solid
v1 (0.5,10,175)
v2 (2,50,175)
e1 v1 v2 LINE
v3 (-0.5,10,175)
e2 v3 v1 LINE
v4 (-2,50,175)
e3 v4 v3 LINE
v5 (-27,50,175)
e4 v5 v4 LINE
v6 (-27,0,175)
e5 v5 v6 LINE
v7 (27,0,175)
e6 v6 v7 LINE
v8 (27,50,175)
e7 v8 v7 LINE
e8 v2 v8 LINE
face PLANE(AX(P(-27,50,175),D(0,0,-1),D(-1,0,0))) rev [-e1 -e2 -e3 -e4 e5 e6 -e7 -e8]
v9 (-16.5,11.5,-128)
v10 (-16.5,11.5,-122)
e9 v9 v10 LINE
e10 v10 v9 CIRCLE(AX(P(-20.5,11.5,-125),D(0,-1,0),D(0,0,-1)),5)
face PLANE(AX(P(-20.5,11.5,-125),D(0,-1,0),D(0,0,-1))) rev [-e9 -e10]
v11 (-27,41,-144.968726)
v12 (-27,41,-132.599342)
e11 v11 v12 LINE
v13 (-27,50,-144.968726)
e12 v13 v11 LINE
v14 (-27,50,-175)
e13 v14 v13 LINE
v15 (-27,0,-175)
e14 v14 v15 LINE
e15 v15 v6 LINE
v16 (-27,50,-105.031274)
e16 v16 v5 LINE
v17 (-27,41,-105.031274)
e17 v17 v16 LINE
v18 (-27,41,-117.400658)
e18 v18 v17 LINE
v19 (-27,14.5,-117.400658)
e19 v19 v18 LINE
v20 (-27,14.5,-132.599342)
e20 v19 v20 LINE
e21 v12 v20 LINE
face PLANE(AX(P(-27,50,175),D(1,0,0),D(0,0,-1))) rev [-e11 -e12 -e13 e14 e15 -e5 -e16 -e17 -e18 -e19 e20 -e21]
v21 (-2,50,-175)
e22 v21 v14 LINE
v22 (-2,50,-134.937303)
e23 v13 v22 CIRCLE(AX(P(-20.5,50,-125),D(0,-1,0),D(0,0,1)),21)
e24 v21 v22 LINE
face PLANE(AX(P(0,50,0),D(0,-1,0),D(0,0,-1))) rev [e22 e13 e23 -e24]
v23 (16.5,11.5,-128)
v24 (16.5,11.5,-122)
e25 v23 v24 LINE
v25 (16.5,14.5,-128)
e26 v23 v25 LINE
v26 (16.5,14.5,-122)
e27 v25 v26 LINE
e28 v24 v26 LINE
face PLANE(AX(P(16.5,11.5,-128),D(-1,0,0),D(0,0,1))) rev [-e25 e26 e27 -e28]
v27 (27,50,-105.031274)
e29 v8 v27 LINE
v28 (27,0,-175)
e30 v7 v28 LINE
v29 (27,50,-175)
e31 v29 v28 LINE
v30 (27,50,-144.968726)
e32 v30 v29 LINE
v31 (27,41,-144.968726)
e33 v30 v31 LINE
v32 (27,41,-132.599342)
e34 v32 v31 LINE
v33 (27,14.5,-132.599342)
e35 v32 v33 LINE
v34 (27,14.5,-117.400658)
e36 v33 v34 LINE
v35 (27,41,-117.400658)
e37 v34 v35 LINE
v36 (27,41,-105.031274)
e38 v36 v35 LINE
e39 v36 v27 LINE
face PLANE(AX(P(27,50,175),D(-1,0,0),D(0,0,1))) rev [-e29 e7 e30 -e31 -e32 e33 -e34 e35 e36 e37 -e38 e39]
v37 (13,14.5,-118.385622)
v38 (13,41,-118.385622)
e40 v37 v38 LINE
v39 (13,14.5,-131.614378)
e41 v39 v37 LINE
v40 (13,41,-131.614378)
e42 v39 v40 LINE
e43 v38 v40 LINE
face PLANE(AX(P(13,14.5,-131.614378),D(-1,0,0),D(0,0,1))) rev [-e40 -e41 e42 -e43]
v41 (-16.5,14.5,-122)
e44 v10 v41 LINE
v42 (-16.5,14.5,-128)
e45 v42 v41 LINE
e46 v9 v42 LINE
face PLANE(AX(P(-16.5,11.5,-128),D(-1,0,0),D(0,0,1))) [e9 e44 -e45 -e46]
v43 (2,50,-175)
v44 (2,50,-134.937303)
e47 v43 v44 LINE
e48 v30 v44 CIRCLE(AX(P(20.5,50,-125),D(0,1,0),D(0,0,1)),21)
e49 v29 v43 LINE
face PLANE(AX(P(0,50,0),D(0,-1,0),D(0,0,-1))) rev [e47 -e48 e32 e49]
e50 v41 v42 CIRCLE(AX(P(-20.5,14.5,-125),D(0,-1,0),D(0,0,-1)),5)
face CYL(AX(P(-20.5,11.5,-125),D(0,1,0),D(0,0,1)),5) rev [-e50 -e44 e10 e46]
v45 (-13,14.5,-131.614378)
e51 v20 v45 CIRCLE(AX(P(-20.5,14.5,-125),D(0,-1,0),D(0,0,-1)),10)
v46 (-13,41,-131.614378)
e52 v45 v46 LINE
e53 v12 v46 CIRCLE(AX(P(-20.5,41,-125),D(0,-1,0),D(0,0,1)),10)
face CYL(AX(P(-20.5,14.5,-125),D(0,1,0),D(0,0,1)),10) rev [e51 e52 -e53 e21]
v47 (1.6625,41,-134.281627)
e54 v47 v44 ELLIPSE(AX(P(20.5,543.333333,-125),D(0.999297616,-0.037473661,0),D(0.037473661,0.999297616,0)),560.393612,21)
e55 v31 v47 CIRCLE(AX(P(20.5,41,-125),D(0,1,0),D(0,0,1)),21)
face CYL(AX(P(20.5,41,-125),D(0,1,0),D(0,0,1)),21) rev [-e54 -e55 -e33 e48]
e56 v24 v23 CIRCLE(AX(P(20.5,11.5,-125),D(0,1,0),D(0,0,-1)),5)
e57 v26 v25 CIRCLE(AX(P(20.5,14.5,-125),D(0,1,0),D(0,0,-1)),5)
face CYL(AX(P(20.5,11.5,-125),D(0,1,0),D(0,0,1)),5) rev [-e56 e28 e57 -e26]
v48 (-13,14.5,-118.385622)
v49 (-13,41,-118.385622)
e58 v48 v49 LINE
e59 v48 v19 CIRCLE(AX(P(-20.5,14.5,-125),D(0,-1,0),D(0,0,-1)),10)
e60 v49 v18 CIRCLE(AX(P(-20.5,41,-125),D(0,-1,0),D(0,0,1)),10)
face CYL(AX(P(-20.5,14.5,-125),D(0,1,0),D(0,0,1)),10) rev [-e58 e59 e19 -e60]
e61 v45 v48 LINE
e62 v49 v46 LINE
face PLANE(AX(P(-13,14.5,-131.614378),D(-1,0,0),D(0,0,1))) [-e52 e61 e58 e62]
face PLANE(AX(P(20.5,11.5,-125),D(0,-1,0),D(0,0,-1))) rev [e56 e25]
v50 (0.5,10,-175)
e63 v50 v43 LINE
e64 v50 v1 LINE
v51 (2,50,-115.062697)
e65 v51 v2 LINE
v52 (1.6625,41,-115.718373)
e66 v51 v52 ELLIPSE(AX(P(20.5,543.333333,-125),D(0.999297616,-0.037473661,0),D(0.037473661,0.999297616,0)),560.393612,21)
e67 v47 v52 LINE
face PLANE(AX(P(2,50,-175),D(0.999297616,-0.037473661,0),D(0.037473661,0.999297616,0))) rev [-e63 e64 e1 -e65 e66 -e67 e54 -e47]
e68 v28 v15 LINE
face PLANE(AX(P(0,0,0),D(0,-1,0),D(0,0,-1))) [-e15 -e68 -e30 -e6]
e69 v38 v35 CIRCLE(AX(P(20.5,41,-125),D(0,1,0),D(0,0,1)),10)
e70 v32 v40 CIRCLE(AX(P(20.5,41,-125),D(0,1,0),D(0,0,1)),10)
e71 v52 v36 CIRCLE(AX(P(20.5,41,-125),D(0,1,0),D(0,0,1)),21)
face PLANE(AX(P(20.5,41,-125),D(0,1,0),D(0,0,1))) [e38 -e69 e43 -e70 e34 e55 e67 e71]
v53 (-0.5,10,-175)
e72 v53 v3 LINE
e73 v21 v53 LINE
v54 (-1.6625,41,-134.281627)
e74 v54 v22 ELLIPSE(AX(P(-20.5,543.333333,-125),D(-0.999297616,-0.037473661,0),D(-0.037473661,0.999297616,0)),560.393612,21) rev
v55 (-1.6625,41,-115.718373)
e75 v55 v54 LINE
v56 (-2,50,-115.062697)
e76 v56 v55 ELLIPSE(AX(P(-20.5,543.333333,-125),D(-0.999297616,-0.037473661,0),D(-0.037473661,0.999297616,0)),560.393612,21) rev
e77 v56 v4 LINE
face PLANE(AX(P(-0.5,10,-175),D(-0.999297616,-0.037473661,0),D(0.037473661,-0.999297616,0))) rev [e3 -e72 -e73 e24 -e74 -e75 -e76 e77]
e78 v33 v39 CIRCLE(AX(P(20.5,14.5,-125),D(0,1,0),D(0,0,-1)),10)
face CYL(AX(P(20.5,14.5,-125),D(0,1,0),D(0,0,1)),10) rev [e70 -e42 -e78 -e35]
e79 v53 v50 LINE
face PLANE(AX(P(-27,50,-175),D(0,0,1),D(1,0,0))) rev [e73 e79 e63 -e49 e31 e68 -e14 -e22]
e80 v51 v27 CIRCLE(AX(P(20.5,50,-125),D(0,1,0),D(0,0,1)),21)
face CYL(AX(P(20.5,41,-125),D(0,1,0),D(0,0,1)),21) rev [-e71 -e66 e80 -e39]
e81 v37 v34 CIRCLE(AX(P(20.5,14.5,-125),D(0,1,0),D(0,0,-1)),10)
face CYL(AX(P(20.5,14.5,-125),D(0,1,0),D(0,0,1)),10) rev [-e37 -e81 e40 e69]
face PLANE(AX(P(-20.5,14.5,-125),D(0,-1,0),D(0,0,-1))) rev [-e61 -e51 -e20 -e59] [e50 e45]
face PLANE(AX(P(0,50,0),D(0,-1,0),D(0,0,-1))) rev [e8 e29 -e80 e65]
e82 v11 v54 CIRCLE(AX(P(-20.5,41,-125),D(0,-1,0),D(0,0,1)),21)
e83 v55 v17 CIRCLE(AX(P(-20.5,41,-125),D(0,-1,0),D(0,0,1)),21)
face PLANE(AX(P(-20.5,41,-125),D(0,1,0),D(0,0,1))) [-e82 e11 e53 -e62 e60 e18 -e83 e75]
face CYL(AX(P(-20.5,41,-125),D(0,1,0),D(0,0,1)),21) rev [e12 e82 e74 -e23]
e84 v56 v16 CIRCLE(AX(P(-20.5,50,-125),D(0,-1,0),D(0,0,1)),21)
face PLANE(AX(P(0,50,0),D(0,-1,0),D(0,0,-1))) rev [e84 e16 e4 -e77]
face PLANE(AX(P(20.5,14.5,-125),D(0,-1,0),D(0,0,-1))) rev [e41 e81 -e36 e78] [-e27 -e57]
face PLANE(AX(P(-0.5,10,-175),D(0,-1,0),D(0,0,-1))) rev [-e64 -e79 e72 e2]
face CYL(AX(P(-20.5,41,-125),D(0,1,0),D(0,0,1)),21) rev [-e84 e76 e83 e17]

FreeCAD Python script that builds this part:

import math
import FreeCAD as App
import Part
import Sketcher
from FreeCAD import Vector

doc = App.newDocument("Part")
body = doc.addObject("PartDesign::Body", "Body")

# Sketch on XZ plane
sketch1 = body.newObject("Sketcher::SketchObject", "Sketch")
sketch1.AttachmentSupport = (doc.getObject("XZ_Plane"), [""])
sketch1.MapMode = "FlatFace"
sketch1.addGeometry([
    Part.LineSegment(Vector(-27, -175, 0), Vector(-27, 175, 0)),
    Part.LineSegment(Vector(-27, 175, 0), Vector(27, 175, 0)),
    Part.LineSegment(Vector(27, 175, 0), Vector(27, -175, 0)),
    Part.LineSegment(Vector(27, -175, 0), Vector(-27, -175, 0)),
], False)
sketch1.addConstraint([
    Sketcher.Constraint("Coincident", 0, 2, 1, 1),
    Sketcher.Constraint("Coincident", 1, 2, 2, 1),
    Sketcher.Constraint("Coincident", 2, 2, 3, 1),
    Sketcher.Constraint("Coincident", 3, 2, 0, 1),
    Sketcher.Constraint("Vertical", 0),
    Sketcher.Constraint("Horizontal", 1),
    Sketcher.Constraint("Vertical", 2),
    Sketcher.Constraint("Horizontal", 3),
    Sketcher.Constraint("Symmetric", 0, 2, 2, 2, -1, 1),
    Sketcher.Constraint("DistanceX", 1, 1, 1, 2, 54.0),
    Sketcher.Constraint("DistanceY", 0, 1, 0, 2, 350.0),
])
pad1 = body.newObject("PartDesign::Pad", "Pad")
pad1.Profile = sketch1
pad1.Length = 50
pad1.Reversed = True

# Sketch on XY plane
sketch2 = body.newObject("Sketcher::SketchObject", "Sketch001")
sketch2.AttachmentSupport = (doc.getObject("XY_Plane"), [""])
sketch2.MapMode = "FlatFace"
sketch2.AttachmentOffset = App.Placement(Vector(0, 0, 175), App.Rotation())
sketch2.addGeometry([
    Part.LineSegment(Vector(-2, 50, 0), Vector(-0.5, 10, 0)),
    Part.LineSegment(Vector(-0.5, 10, 0), Vector(0.5, 10, 0)),
    Part.LineSegment(Vector(0.5, 10, 0), Vector(2, 50, 0)),
    Part.LineSegment(Vector(2, 50, 0), Vector(-2, 50, 0)),
], False)
sketch2.addConstraint([
    Sketcher.Constraint("Coincident", 0, 2, 1, 1),
    Sketcher.Constraint("Coincident", 1, 2, 2, 1),
    Sketcher.Constraint("Coincident", 2, 2, 3, 1),
    Sketcher.Constraint("Coincident", 3, 2, 0, 1),
    Sketcher.Constraint("Horizontal", 1),
    Sketcher.Constraint("Horizontal", 3),
    Sketcher.Constraint("Equal", 0, 2),
    Sketcher.Constraint("DistanceX", 1, 1, 1, 2, 1.0),
    Sketcher.Constraint("DistanceX", 3, 2, 3, 1, 4.0),
    Sketcher.Constraint("DistanceY", -1, 1, 0, 2, 10.0),
    Sketcher.Constraint("DistanceX", -1, 1, 2, 2, 2.0),
    Sketcher.Constraint("DistanceY", -1, 1, 2, 2, 50.0),
])
pocket1 = body.newObject("PartDesign::Pocket", "Pocket")
pocket1.Profile = sketch2
pocket1.Type = "ThroughAll"

# Sketch on XZ plane
sketch3 = body.newObject("Sketcher::SketchObject", "Sketch002")
sketch3.AttachmentSupport = (doc.getObject("XZ_Plane"), [""])
sketch3.MapMode = "FlatFace"
sketch3.AttachmentOffset = App.Placement(Vector(0, 0, -50), App.Rotation())
sketch3.addGeometry([
    Part.Circle(Vector(20, -125, 0), Vector(0, 0, 1), 21),
    Part.Circle(Vector(20, -125, 0), Vector(0, 0, 1), 10),
], False)
sketch3.addConstraint([
    Sketcher.Constraint("Coincident", 1, 3, 0, 3),
    Sketcher.Constraint("Diameter", 0, 42.0),
    Sketcher.Constraint("Diameter", 1, 20.0),
    Sketcher.Constraint("DistanceY", 0, 3, -1, 1, 125.0),
    Sketcher.Constraint("DistanceX", -1, 1, 0, 3, 20.5),
])
pocket2 = body.newObject("PartDesign::Pocket", "Pocket001")
pocket2.Profile = sketch3
pocket2.Length = 9
pocket2.Reversed = True

# Sketch on XZ plane
sketch4 = body.newObject("Sketcher::SketchObject", "Sketch003")
sketch4.AttachmentSupport = (doc.getObject("XZ_Plane"), [""])
sketch4.MapMode = "FlatFace"
sketch4.AttachmentOffset = App.Placement(Vector(0, 0, -50), App.Rotation())
sketch4.addGeometry([
    Part.LineSegment(Vector(13, -132, 0), Vector(13, -118, 0)),
    Part.ArcOfCircle(Part.Circle(Vector(20, -125, 0), Vector(0, 0, 1), 10), math.radians(-139), math.radians(139)),
], False)
sketch4.addConstraint([
    Sketcher.Constraint("Coincident", 0, 1, 1, 1),
    Sketcher.Constraint("Coincident", 1, 2, 0, 2),
    Sketcher.Constraint("Vertical", 0),
    Sketcher.Constraint("Radius", 1, 10.0),
    Sketcher.Constraint("DistanceY", 1, 3, -1, 1, 125.0),
    Sketcher.Constraint("DistanceX", -1, 1, 0, 1, 13.0),
    Sketcher.Constraint("DistanceX", -1, 1, 1, 3, 20.5),
])
pocket3 = body.newObject("PartDesign::Pocket", "Pocket002")
pocket3.Profile = sketch4
pocket3.Length = 35.5
pocket3.Reversed = True

# Sketch on XZ plane
sketch5 = body.newObject("Sketcher::SketchObject", "Sketch004")
sketch5.AttachmentSupport = (doc.getObject("XZ_Plane"), [""])
sketch5.MapMode = "FlatFace"
sketch5.AttachmentOffset = App.Placement(Vector(0, 0, -14.5), App.Rotation())
sketch5.addGeometry([
    Part.LineSegment(Vector(16, -128, 0), Vector(16, -122, 0)),
    Part.ArcOfCircle(Part.Circle(Vector(20, -125, 0), Vector(0, 0, 1), 5), math.radians(-143), math.radians(143)),
], False)
sketch5.addConstraint([
    Sketcher.Constraint("Coincident", 0, 1, 1, 1),
    Sketcher.Constraint("Coincident", 1, 2, 0, 2),
    Sketcher.Constraint("Vertical", 0),
    Sketcher.Constraint("Radius", 1, 5.0),
    Sketcher.Constraint("DistanceY", 0, 1, 0, 2, 6.0),
    Sketcher.Constraint("DistanceY", 1, 3, -1, 1, 125.0),
    Sketcher.Constraint("DistanceX", -1, 1, 1, 3, 20.5),
])
pocket4 = body.newObject("PartDesign::Pocket", "Pocket003")
pocket4.Profile = sketch5
pocket4.Length = 3
pocket4.Reversed = True

# Sketch on XZ plane
sketch6 = body.newObject("Sketcher::SketchObject", "Sketch005")
sketch6.AttachmentSupport = (doc.getObject("XZ_Plane"), [""])
sketch6.MapMode = "FlatFace"
sketch6.AttachmentOffset = App.Placement(Vector(0, 0, -50), App.Rotation())
sketch6.addGeometry([
    Part.LineSegment(Vector(13, -118, 0), Vector(13, -132, 0)),
    Part.ArcOfCircle(Part.Circle(Vector(21, -125, 0), Vector(0, 0, 1), 10), math.radians(139), math.radians(221)),
], False)
sketch6.addConstraint([
    Sketcher.Constraint("Coincident", 0, 1, 1, 1),
    Sketcher.Constraint("Coincident", 1, 2, 0, 2),
    Sketcher.Constraint("Vertical", 0),
    Sketcher.Constraint("Radius", 1, 10.0),
    Sketcher.Constraint("DistanceY", 1, 3, -1, 1, 125.0),
    Sketcher.Constraint("DistanceX", -1, 1, 0, 1, 13.0),
    Sketcher.Constraint("DistanceX", -1, 1, 1, 3, 20.5),
])
pocket5 = body.newObject("PartDesign::Pocket", "Pocket004")
pocket5.Profile = sketch6
pocket5.Length = 9
pocket5.Reversed = True
doc.recompute()

mirrored = body.newObject("PartDesign::Mirrored", "Mirrored")
mirrored.Originals = [pocket2, pocket3, pocket4, pocket5]
mirrored.MirrorPlane = (doc.getObject("YZ_Plane"), [""])
body.Tip = mirrored

doc.recompute()
